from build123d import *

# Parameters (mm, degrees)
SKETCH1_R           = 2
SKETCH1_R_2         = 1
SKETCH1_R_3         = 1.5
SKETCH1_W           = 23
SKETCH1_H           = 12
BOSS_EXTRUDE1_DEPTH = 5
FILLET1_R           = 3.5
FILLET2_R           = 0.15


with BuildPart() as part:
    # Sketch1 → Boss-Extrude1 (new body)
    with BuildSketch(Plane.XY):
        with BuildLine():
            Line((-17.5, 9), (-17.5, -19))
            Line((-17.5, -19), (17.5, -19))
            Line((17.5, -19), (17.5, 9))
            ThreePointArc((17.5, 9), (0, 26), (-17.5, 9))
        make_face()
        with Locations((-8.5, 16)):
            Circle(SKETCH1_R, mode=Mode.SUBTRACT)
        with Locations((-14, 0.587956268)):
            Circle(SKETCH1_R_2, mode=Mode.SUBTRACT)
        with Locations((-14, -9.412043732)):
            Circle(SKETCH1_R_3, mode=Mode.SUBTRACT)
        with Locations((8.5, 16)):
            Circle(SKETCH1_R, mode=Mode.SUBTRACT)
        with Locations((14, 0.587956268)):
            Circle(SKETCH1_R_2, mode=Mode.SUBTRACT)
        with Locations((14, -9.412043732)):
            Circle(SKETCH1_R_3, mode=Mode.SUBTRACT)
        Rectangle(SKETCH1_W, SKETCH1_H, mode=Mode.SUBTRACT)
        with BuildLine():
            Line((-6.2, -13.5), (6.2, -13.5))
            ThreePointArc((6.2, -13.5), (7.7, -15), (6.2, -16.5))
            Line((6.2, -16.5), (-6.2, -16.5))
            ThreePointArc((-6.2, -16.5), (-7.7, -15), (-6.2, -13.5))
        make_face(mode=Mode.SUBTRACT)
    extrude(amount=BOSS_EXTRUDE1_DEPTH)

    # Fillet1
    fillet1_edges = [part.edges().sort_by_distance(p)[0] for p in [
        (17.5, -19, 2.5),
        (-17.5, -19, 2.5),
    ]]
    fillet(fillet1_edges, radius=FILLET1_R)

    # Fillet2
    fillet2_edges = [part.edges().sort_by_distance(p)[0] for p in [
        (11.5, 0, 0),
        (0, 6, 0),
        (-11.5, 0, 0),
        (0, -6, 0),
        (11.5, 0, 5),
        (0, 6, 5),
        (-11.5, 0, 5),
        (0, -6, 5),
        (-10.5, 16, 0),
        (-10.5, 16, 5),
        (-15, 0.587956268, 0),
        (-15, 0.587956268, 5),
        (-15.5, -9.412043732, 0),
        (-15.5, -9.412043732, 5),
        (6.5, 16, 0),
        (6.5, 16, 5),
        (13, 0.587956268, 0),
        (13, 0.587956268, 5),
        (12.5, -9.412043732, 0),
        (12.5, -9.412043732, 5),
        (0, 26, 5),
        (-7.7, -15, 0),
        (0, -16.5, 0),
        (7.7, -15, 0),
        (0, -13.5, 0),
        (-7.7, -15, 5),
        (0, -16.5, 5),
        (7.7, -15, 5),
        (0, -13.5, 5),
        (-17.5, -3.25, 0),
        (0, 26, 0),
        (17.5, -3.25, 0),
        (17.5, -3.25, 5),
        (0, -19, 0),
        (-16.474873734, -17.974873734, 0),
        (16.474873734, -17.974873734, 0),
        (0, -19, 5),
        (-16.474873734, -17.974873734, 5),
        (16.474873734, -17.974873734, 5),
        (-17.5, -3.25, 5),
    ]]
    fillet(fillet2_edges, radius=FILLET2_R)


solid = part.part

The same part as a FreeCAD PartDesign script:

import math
import FreeCAD as App
import Part
import Sketcher

V = App.Vector


def edges_at(feature, points):
    """Names of the edges that pass closest to the given points."""
    edges = feature.Shape.Edges
    near = lambda p: min(range(len(edges)), key=lambda i: edges[i].distToShape(Part.Vertex(*p))[0])
    return sorted({f"Edge{near(p) + 1}" for p in points})

doc = App.newDocument("Part")
params = doc.addObject("Spreadsheet::Sheet", "Params")
for row, (alias, value) in enumerate([
    ("sketch1_diameter", "3 mm"),
    ("sketch1_diameter2", "2 mm"),
    ("sketch1_diameter3", "4 mm"),
    ("sketch1_width", "35 mm"),
    ("sketch1_width2", "23 mm"),
    ("pad1_length", "5 mm"),
    ("fillet_radius", "3.5 mm"),
    ("fillet2_radius", "0.15 mm"),
], start=1):
    params.set(f"A{row}", alias)
    params.set(f"B{row}", "=" + value)
    params.setAlias(f"B{row}", alias)

body = doc.addObject("PartDesign::Body", "Body")

# Sketch on XY plane
sketch1 = body.newObject("Sketcher::SketchObject", "Sketch")
sketch1.AttachmentSupport = (doc.getObject("XY_Plane"), [""])
sketch1.MapMode = "FlatFace"
sketch1.addGeometry(Part.LineSegment(V(-17.5, 9, 0), V(-17.5, -19, 0)), False)
sketch1.addGeometry(Part.LineSegment(V(-17.5, -19, 0), V(17.5, -19, 0)), False)
sketch1.addGeometry(Part.LineSegment(V(17.5, -19, 0), V(17.5, 9, 0)), False)
sketch1.addGeometry(Part.ArcOfCircle(Part.Circle(V(0, 8.492647, 0), V(0, 0, 1), 17.507353), math.radians(1.660631), math.radians(178.339369)), False)
sketch1.addGeometry(Part.Circle(V(-14, -9.412044, 0), V(0, 0, 1), 1.5), False)
sketch1.addGeometry(Part.Circle(V(-14, 0.587956, 0), V(0, 0, 1), 1), False)
sketch1.addGeometry(Part.ArcOfCircle(Part.Circle(V(-6.2, -15, 0), V(0, 0, 1), 1.5), math.radians(90), math.radians(270)), False)
sketch1.addGeometry(Part.LineSegment(V(-6.2, -13.5, 0), V(6.2, -13.5, 0)), False)
sketch1.addGeometry(Part.ArcOfCircle(Part.Circle(V(6.2, -15, 0), V(0, 0, 1), 1.5), math.radians(-90), math.radians(90)), False)
sketch1.addGeometry(Part.LineSegment(V(6.2, -16.5, 0), V(-6.2, -16.5, 0)), False)
sketch1.addGeometry(Part.Circle(V(14, -9.412044, 0), V(0, 0, 1), 1.5), False)
sketch1.addGeometry(Part.LineSegment(V(11.5, -6, 0), V(-11.5, -6, 0)), False)
sketch1.addGeometry(Part.LineSegment(V(-11.5, -6, 0), V(-11.5, 6, 0)), False)
sketch1.addGeometry(Part.LineSegment(V(-11.5, 6, 0), V(11.5, 6, 0)), False)
sketch1.addGeometry(Part.LineSegment(V(11.5, 6, 0), V(11.5, -6, 0)), False)
sketch1.addGeometry(Part.Circle(V(14, 0.587956, 0), V(0, 0, 1), 1), False)
sketch1.addGeometry(Part.Circle(V(-8.5, 16, 0), V(0, 0, 1), 2), False)
sketch1.addGeometry(Part.Circle(V(8.5, 16, 0), V(0, 0, 1), 2), False)
sketch1.addConstraint(Sketcher.Constraint("Coincident", 0, 2, 1, 1))
sketch1.addConstraint(Sketcher.Constraint("Coincident", 1, 2, 2, 1))
sketch1.addConstraint(Sketcher.Constraint("Coincident", 2, 2, 3, 1))
sketch1.addConstraint(Sketcher.Constraint("Coincident", 3, 2, 0, 1))
sketch1.addConstraint(Sketcher.Constraint("Tangent", 6, 1, 7, 1))
sketch1.addConstraint(Sketcher.Constraint("Tangent", 7, 2, 8, 2))
sketch1.addConstraint(Sketcher.Constraint("Tangent", 8, 1, 9, 1))
sketch1.addConstraint(Sketcher.Constraint("Tangent", 9, 2, 6, 2))
sketch1.addConstraint(Sketcher.Constraint("Coincident", 11, 2, 12, 1))
sketch1.addConstraint(Sketcher.Constraint("Coincident", 12, 2, 13, 1))
sketch1.addConstraint(Sketcher.Constraint("Coincident", 13, 2, 14, 1))
sketch1.addConstraint(Sketcher.Constraint("Coincident", 14, 2, 11, 1))
sketch1.addConstraint(Sketcher.Constraint("Vertical", 0))
sketch1.addConstraint(Sketcher.Constraint("Horizontal", 1))
sketch1.addConstraint(Sketcher.Constraint("Vertical", 2))
sketch1.addConstraint(Sketcher.Constraint("Horizontal", 7))
sketch1.addConstraint(Sketcher.Constraint("Horizontal", 9))
sketch1.addConstraint(Sketcher.Constraint("Horizontal", 11))
sketch1.addConstraint(Sketcher.Constraint("Vertical", 12))
sketch1.addConstraint(Sketcher.Constraint("Horizontal", 13))
sketch1.addConstraint(Sketcher.Constraint("Vertical", 14))
sketch1.addConstraint(Sketcher.Constraint("Equal", 4, 6))
sketch1.addConstraint(Sketcher.Constraint("Equal", 8, 10))
sketch1.addConstraint(Sketcher.Constraint("Equal", 5, 15))
sketch1.addConstraint(Sketcher.Constraint("Equal", 16, 17))
sketch1.addConstraint(Sketcher.Constraint("Symmetric", 11, 2, 13, 2, -1, 1))
sketch1.addConstraint(Sketcher.Constraint("Symmetric", 4, 3, 10, 3, -2))
sketch1.addConstraint(Sketcher.Constraint("Symmetric", 5, 3, 15, 3, -2))
sketch1.addConstraint(Sketcher.Constraint("Symmetric", 16, 3, 17, 3, -2))
sketch1.addConstraint(Sketcher.Constraint("Symmetric", 2, 2, 3, 2, -2))
sketch1.addConstraint(Sketcher.Constraint("Vertical", 4, 3, 5, 3))
sketch1.addConstraint(Sketcher.Constraint("Diameter", 4, 3.0))
sketch1.addConstraint(Sketcher.Constraint("Diameter", 5, 2.0))
sketch1.addConstraint(Sketcher.Constraint("Diameter", 16, 4.0))
sketch1.addConstraint(Sketcher.Constraint("DistanceX", 1, 1, 1, 2, 35.0))
sketch1.addConstraint(Sketcher.Constraint("DistanceX", 11, 2, 11, 1, 23.0))
sketch1.addConstraint(Sketcher.Constraint("DistanceY", 0, 2, 0, 1, 28.0))
sketch1.addConstraint(Sketcher.Constraint("DistanceY", 12, 1, 12, 2, 12.0))
sketch1.addConstraint(Sketcher.Constraint("DistanceX", 7, 1, 7, 2, 12.4))
sketch1.addConstraint(Sketcher.Constraint("DistanceX", 4, 3, -1, 1, 14.0))
sketch1.addConstraint(Sketcher.Constraint("DistanceY", 6, 3, -1, 1, 15.0))
sketch1.addConstraint(Sketcher.Constraint("DistanceY", -1, 1, 16, 3, 16.0))
sketch1.addConstraint(Sketcher.Constraint("DistanceY", 0, 2, -1, 1, 19.0))
sketch1.addConstraint(Sketcher.Constraint("DistanceY", 4, 3, 5, 3, 10.0))
sketch1.addConstraint(Sketcher.Constraint("DistanceX", 16, 3, 17, 3, 17.0))
sketch1.addConstraint(Sketcher.Constraint("DistanceX", 6, 3, -1, 1, 6.2))
sketch1.addConstraint(Sketcher.Constraint("Radius", 3, 17.507353))
sketch1.addConstraint(Sketcher.Constraint("DistanceY", 4, 3, 3, 3, 17.904691))
sketch1.setExpression("Constraints[31]", "Params.sketch1_diameter")
sketch1.setExpression("Constraints[32]", "Params.sketch1_diameter2")
sketch1.setExpression("Constraints[33]", "Params.sketch1_diameter3")
sketch1.setExpression("Constraints[34]", "Params.sketch1_width")
sketch1.setExpression("Constraints[35]", "Params.sketch1_width2")
pad1 = body.newObject("PartDesign::Pad", "Pad")
pad1.Profile = sketch1
pad1.setExpression("Length", "Params.pad1_length")
doc.recompute()

fillet = body.newObject("PartDesign::Fillet", "Fillet")
fillet.Base = (pad1, edges_at(pad1, [(17.5, -19, 2.5), (-17.5, -19, 2.5)]))
fillet.setExpression("Radius", "Params.fillet_radius")
doc.recompute()

fillet2 = body.newObject("PartDesign::Fillet", "Fillet001")
fillet2.Base = (fillet, edges_at(fillet, [
    (11.5, 0, 0),
    (0, 6, 0),
    (-11.5, 0, 0),
    (0, -6, 0),
    (11.5, 0, 5),
    (0, 6, 5),
    (-11.5, 0, 5),
    (0, -6, 5),
    (-10.5, 16, 0),
    (-10.5, 16, 5),
    (-15, 0.588, 0),
    (-15, 0.588, 5),
    (-15.5, -9.412, 0),
    (-15.5, -9.412, 5),
    (6.5, 16, 0),
    (6.5, 16, 5),
    (13, 0.588, 0),
    (13, 0.588, 5),
    (12.5, -9.412, 0),
    (12.5, -9.412, 5),
    (0, 26, 5),
    (-7.7, -15, 0),
    (0, -16.5, 0),
    (7.7, -15, 0),
    (0, -13.5, 0),
    (-7.7, -15, 5),
    (0, -16.5, 5),
    (7.7, -15, 5),
    (0, -13.5, 5),
    (-17.5, -3.25, 0),
    (0, 26, 0),
    (17.5, -3.25, 0),
    (17.5, -3.25, 5),
    (0, -19, 0),
    (-16.475, -17.975, 0),
    (16.475, -17.975, 0),
    (0, -19, 5),
    (-16.475, -17.975, 5),
    (16.475, -17.975, 5),
    (-17.5, -3.25, 5),
]))
fillet2.setExpression("Radius", "Params.fillet2_radius")

doc.recompute()
